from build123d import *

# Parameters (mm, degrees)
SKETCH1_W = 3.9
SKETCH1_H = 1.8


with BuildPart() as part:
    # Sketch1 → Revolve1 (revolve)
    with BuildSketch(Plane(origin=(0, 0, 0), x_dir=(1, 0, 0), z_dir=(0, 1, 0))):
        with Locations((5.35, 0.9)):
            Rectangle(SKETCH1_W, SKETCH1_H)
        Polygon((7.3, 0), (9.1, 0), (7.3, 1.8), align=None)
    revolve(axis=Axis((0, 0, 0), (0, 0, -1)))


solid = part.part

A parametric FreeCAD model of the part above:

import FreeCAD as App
import Part
import Sketcher
from FreeCAD import Vector
Q = App.Units.Quantity

doc = App.newDocument("Part")
body = doc.addObject("PartDesign::Body", "Body")

# Sketch on XZ plane
sketch1 = body.newObject("Sketcher::SketchObject", "Sketch")
sketch1.AttachmentSupport = (doc.getObject("XZ_Plane"), [""])
sketch1.MapMode = "FlatFace"
sketch1.addGeometry([
    Part.LineSegment(Vector(3.4, -1.8, 0), Vector(3.4, 0, 0)),
    Part.LineSegment(Vector(3.4, 0, 0), Vector(9.1, 0, 0)),
    Part.LineSegment(Vector(9.1, 0, 0), Vector(7.3, -1.8, 0)),
    Part.LineSegment(Vector(7.3, -1.8, 0), Vector(3.4, -1.8, 0)),
], False)
sketch1.addConstraint([
    Sketcher.Constraint("Coincident", 0, 2, 1, 1),
    Sketcher.Constraint("Coincident", 1, 2, 2, 1),
    Sketcher.Constraint("Coincident", 2, 2, 3, 1),
    Sketcher.Constraint("Coincident", 3, 2, 0, 1),
    Sketcher.Constraint("Vertical", 0),
    Sketcher.Constraint("Horizontal", 1),
    Sketcher.Constraint("Horizontal", 3),
    Sketcher.Constraint("PointOnObject", 0, 2, -1),
    Sketcher.Constraint("Angle", 2, Q("-135 deg")),
    Sketcher.Constraint("DistanceX", 1, 1, 1, 2, Q("5.7 mm")),
    Sketcher.Constraint("DistanceX", 3, 2, 3, 1, Q("3.9 mm")),
    Sketcher.Constraint("DistanceX", -1, 1, 0, 2, Q("3.4 mm")),
])
revolution = body.newObject("PartDesign::Revolution", "Revolution")
revolution.Profile = sketch1
revolution.ReferenceAxis = (sketch1, ["V_Axis"])
revolution.Angle = 360

doc.recompute()
